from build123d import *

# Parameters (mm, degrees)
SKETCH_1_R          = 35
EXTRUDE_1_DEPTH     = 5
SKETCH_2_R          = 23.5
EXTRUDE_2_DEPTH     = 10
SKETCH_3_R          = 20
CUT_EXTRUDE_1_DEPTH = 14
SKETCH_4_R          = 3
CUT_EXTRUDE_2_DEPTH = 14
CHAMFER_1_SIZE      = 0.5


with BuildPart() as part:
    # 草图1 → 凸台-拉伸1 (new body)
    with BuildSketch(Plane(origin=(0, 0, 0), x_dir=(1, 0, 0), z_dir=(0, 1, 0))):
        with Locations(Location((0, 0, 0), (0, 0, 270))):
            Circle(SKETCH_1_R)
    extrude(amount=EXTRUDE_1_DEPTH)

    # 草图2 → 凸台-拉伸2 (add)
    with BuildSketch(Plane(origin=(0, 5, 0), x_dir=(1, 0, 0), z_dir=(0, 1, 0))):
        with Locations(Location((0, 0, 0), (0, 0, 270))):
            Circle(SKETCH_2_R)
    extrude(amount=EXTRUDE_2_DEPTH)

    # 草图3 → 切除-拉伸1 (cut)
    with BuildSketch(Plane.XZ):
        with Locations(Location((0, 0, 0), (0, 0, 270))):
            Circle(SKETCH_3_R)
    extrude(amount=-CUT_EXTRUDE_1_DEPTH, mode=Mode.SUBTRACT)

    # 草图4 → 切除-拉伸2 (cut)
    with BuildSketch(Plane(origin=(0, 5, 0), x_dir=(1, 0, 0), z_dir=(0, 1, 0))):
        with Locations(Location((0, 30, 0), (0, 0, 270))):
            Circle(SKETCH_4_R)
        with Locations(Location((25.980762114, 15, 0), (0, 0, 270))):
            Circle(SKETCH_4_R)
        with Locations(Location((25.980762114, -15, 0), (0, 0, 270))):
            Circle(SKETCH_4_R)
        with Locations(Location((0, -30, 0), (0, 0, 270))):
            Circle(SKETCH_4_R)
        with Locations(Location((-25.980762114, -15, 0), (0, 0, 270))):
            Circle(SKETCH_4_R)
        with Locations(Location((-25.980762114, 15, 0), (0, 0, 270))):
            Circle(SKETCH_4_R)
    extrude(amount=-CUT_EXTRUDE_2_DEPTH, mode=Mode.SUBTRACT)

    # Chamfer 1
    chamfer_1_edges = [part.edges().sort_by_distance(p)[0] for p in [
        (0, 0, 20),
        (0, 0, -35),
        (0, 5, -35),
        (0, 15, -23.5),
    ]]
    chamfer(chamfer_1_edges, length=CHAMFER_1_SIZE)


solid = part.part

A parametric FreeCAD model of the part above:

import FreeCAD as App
import Part
import Sketcher
from FreeCAD import Vector


def edges_at(feature, points):
    """Names of the edges that pass closest to the given points."""
    edges = feature.Shape.Edges
    near = lambda p: min(range(len(edges)), key=lambda i: edges[i].distToShape(Part.Vertex(*p))[0])
    return sorted({f"Edge{near(p) + 1}" for p in points})

doc = App.newDocument("Part")
body = doc.addObject("PartDesign::Body", "Body")

# Sketch on XZ plane
sketch1 = body.newObject("Sketcher::SketchObject", "Sketch")
sketch1.AttachmentSupport = (doc.getObject("XZ_Plane"), [""])
sketch1.MapMode = "FlatFace"
sketch1.addGeometry(Part.Circle(Vector(0, 0, 0), Vector(0, 0, 1), 35), False)
sketch1.addConstraint([
    Sketcher.Constraint("Coincident", 0, 3, -1, 1),
    Sketcher.Constraint("Diameter", 0, 70.0),
])
pad1 = body.newObject("PartDesign::Pad", "Pad")
pad1.Profile = sketch1
pad1.Length = 5
pad1.Reversed = True

# Sketch on XZ plane
sketch2 = body.newObject("Sketcher::SketchObject", "Sketch001")
sketch2.AttachmentSupport = (doc.getObject("XZ_Plane"), [""])
sketch2.MapMode = "FlatFace"
sketch2.AttachmentOffset = App.Placement(Vector(0, 0, -5), App.Rotation())
sketch2.addGeometry(Part.Circle(Vector(0, 0, 0), Vector(0, 0, 1), 24), False)
sketch2.addConstraint([
    Sketcher.Constraint("Coincident", 0, 3, -1, 1),
    Sketcher.Constraint("Diameter", 0, 47.0),
])
pad2 = body.newObject("PartDesign::Pad", "Pad001")
pad2.Profile = sketch2
pad2.Length = 10
pad2.Reversed = True

# Sketch on XZ plane
sketch3 = body.newObject("Sketcher::SketchObject", "Sketch002")
sketch3.AttachmentSupport = (doc.getObject("XZ_Plane"), [""])
sketch3.MapMode = "FlatFace"
sketch3.addGeometry(Part.Circle(Vector(0, 0, 0), Vector(0, 0, 1), 20), False)
sketch3.addConstraint([
    Sketcher.Constraint("Coincident", 0, 3, -1, 1),
    Sketcher.Constraint("Diameter", 0, 40.0),
])
pocket1 = body.newObject("PartDesign::Pocket", "Pocket")
pocket1.Profile = sketch3
pocket1.Length = 14

# Sketch on XZ plane
sketch4 = body.newObject("Sketcher::SketchObject", "Sketch003")
sketch4.AttachmentSupport = (doc.getObject("XZ_Plane"), [""])
sketch4.MapMode = "FlatFace"
sketch4.AttachmentOffset = App.Placement(Vector(0, 0, -5), App.Rotation())
sketch4.addGeometry([
    Part.Circle(Vector(0, -30, 0), Vector(0, 0, 1), 3),  # 0
    Part.Circle(Vector(26, -15, 0), Vector(0, 0, 1), 3),  # 1
    Part.Circle(Vector(26, 15, 0), Vector(0, 0, 1), 3),  # 2
    Part.Circle(Vector(0, 30, 0), Vector(0, 0, 1), 3),  # 3
    Part.Circle(Vector(-26, 15, 0), Vector(0, 0, 1), 3),  # 4
    Part.Circle(Vector(-26, -15, 0), Vector(0, 0, 1), 3),  # 5
], False)
sketch4.addConstraint([
    Sketcher.Constraint("Equal", 0, 1),
    Sketcher.Constraint("Equal", 1, 2),
    Sketcher.Constraint("Equal", 2, 3),
    Sketcher.Constraint("Equal", 3, 4),
    Sketcher.Constraint("Equal", 4, 5),
    Sketcher.Constraint("Symmetric", 0, 3, 3, 3, -1, 1),
    Sketcher.Constraint("Symmetric", 1, 3, 4, 3, -1, 1),
    Sketcher.Constraint("Symmetric", 2, 3, 5, 3, -1, 1),
    Sketcher.Constraint("Symmetric", 2, 3, 4, 3, -2),
    Sketcher.Constraint("PointOnObject", 0, 3, -2),
    Sketcher.Constraint("Diameter", 0, 6.0),
    Sketcher.Constraint("DistanceY", 0, 3, -1, 1, 30.0),
    Sketcher.Constraint("DistanceY", 1, 3, -1, 1, 15.0),
    Sketcher.Constraint("DistanceX", -1, 1, 1, 3, 25.980762),
])
pocket2 = body.newObject("PartDesign::Pocket", "Pocket001")
pocket2.Profile = sketch4
pocket2.Length = 14
pocket2.Reversed = True
doc.recompute()

chamfer = body.newObject("PartDesign::Chamfer", "Chamfer")
chamfer.Base = (pocket2, edges_at(pocket2, [
    (0, 0, 20),
    (0, 0, -35),
    (0, 5, -35),
    (0, 15, -23.5),
]))
chamfer.Size = 0.5

doc.recompute()
